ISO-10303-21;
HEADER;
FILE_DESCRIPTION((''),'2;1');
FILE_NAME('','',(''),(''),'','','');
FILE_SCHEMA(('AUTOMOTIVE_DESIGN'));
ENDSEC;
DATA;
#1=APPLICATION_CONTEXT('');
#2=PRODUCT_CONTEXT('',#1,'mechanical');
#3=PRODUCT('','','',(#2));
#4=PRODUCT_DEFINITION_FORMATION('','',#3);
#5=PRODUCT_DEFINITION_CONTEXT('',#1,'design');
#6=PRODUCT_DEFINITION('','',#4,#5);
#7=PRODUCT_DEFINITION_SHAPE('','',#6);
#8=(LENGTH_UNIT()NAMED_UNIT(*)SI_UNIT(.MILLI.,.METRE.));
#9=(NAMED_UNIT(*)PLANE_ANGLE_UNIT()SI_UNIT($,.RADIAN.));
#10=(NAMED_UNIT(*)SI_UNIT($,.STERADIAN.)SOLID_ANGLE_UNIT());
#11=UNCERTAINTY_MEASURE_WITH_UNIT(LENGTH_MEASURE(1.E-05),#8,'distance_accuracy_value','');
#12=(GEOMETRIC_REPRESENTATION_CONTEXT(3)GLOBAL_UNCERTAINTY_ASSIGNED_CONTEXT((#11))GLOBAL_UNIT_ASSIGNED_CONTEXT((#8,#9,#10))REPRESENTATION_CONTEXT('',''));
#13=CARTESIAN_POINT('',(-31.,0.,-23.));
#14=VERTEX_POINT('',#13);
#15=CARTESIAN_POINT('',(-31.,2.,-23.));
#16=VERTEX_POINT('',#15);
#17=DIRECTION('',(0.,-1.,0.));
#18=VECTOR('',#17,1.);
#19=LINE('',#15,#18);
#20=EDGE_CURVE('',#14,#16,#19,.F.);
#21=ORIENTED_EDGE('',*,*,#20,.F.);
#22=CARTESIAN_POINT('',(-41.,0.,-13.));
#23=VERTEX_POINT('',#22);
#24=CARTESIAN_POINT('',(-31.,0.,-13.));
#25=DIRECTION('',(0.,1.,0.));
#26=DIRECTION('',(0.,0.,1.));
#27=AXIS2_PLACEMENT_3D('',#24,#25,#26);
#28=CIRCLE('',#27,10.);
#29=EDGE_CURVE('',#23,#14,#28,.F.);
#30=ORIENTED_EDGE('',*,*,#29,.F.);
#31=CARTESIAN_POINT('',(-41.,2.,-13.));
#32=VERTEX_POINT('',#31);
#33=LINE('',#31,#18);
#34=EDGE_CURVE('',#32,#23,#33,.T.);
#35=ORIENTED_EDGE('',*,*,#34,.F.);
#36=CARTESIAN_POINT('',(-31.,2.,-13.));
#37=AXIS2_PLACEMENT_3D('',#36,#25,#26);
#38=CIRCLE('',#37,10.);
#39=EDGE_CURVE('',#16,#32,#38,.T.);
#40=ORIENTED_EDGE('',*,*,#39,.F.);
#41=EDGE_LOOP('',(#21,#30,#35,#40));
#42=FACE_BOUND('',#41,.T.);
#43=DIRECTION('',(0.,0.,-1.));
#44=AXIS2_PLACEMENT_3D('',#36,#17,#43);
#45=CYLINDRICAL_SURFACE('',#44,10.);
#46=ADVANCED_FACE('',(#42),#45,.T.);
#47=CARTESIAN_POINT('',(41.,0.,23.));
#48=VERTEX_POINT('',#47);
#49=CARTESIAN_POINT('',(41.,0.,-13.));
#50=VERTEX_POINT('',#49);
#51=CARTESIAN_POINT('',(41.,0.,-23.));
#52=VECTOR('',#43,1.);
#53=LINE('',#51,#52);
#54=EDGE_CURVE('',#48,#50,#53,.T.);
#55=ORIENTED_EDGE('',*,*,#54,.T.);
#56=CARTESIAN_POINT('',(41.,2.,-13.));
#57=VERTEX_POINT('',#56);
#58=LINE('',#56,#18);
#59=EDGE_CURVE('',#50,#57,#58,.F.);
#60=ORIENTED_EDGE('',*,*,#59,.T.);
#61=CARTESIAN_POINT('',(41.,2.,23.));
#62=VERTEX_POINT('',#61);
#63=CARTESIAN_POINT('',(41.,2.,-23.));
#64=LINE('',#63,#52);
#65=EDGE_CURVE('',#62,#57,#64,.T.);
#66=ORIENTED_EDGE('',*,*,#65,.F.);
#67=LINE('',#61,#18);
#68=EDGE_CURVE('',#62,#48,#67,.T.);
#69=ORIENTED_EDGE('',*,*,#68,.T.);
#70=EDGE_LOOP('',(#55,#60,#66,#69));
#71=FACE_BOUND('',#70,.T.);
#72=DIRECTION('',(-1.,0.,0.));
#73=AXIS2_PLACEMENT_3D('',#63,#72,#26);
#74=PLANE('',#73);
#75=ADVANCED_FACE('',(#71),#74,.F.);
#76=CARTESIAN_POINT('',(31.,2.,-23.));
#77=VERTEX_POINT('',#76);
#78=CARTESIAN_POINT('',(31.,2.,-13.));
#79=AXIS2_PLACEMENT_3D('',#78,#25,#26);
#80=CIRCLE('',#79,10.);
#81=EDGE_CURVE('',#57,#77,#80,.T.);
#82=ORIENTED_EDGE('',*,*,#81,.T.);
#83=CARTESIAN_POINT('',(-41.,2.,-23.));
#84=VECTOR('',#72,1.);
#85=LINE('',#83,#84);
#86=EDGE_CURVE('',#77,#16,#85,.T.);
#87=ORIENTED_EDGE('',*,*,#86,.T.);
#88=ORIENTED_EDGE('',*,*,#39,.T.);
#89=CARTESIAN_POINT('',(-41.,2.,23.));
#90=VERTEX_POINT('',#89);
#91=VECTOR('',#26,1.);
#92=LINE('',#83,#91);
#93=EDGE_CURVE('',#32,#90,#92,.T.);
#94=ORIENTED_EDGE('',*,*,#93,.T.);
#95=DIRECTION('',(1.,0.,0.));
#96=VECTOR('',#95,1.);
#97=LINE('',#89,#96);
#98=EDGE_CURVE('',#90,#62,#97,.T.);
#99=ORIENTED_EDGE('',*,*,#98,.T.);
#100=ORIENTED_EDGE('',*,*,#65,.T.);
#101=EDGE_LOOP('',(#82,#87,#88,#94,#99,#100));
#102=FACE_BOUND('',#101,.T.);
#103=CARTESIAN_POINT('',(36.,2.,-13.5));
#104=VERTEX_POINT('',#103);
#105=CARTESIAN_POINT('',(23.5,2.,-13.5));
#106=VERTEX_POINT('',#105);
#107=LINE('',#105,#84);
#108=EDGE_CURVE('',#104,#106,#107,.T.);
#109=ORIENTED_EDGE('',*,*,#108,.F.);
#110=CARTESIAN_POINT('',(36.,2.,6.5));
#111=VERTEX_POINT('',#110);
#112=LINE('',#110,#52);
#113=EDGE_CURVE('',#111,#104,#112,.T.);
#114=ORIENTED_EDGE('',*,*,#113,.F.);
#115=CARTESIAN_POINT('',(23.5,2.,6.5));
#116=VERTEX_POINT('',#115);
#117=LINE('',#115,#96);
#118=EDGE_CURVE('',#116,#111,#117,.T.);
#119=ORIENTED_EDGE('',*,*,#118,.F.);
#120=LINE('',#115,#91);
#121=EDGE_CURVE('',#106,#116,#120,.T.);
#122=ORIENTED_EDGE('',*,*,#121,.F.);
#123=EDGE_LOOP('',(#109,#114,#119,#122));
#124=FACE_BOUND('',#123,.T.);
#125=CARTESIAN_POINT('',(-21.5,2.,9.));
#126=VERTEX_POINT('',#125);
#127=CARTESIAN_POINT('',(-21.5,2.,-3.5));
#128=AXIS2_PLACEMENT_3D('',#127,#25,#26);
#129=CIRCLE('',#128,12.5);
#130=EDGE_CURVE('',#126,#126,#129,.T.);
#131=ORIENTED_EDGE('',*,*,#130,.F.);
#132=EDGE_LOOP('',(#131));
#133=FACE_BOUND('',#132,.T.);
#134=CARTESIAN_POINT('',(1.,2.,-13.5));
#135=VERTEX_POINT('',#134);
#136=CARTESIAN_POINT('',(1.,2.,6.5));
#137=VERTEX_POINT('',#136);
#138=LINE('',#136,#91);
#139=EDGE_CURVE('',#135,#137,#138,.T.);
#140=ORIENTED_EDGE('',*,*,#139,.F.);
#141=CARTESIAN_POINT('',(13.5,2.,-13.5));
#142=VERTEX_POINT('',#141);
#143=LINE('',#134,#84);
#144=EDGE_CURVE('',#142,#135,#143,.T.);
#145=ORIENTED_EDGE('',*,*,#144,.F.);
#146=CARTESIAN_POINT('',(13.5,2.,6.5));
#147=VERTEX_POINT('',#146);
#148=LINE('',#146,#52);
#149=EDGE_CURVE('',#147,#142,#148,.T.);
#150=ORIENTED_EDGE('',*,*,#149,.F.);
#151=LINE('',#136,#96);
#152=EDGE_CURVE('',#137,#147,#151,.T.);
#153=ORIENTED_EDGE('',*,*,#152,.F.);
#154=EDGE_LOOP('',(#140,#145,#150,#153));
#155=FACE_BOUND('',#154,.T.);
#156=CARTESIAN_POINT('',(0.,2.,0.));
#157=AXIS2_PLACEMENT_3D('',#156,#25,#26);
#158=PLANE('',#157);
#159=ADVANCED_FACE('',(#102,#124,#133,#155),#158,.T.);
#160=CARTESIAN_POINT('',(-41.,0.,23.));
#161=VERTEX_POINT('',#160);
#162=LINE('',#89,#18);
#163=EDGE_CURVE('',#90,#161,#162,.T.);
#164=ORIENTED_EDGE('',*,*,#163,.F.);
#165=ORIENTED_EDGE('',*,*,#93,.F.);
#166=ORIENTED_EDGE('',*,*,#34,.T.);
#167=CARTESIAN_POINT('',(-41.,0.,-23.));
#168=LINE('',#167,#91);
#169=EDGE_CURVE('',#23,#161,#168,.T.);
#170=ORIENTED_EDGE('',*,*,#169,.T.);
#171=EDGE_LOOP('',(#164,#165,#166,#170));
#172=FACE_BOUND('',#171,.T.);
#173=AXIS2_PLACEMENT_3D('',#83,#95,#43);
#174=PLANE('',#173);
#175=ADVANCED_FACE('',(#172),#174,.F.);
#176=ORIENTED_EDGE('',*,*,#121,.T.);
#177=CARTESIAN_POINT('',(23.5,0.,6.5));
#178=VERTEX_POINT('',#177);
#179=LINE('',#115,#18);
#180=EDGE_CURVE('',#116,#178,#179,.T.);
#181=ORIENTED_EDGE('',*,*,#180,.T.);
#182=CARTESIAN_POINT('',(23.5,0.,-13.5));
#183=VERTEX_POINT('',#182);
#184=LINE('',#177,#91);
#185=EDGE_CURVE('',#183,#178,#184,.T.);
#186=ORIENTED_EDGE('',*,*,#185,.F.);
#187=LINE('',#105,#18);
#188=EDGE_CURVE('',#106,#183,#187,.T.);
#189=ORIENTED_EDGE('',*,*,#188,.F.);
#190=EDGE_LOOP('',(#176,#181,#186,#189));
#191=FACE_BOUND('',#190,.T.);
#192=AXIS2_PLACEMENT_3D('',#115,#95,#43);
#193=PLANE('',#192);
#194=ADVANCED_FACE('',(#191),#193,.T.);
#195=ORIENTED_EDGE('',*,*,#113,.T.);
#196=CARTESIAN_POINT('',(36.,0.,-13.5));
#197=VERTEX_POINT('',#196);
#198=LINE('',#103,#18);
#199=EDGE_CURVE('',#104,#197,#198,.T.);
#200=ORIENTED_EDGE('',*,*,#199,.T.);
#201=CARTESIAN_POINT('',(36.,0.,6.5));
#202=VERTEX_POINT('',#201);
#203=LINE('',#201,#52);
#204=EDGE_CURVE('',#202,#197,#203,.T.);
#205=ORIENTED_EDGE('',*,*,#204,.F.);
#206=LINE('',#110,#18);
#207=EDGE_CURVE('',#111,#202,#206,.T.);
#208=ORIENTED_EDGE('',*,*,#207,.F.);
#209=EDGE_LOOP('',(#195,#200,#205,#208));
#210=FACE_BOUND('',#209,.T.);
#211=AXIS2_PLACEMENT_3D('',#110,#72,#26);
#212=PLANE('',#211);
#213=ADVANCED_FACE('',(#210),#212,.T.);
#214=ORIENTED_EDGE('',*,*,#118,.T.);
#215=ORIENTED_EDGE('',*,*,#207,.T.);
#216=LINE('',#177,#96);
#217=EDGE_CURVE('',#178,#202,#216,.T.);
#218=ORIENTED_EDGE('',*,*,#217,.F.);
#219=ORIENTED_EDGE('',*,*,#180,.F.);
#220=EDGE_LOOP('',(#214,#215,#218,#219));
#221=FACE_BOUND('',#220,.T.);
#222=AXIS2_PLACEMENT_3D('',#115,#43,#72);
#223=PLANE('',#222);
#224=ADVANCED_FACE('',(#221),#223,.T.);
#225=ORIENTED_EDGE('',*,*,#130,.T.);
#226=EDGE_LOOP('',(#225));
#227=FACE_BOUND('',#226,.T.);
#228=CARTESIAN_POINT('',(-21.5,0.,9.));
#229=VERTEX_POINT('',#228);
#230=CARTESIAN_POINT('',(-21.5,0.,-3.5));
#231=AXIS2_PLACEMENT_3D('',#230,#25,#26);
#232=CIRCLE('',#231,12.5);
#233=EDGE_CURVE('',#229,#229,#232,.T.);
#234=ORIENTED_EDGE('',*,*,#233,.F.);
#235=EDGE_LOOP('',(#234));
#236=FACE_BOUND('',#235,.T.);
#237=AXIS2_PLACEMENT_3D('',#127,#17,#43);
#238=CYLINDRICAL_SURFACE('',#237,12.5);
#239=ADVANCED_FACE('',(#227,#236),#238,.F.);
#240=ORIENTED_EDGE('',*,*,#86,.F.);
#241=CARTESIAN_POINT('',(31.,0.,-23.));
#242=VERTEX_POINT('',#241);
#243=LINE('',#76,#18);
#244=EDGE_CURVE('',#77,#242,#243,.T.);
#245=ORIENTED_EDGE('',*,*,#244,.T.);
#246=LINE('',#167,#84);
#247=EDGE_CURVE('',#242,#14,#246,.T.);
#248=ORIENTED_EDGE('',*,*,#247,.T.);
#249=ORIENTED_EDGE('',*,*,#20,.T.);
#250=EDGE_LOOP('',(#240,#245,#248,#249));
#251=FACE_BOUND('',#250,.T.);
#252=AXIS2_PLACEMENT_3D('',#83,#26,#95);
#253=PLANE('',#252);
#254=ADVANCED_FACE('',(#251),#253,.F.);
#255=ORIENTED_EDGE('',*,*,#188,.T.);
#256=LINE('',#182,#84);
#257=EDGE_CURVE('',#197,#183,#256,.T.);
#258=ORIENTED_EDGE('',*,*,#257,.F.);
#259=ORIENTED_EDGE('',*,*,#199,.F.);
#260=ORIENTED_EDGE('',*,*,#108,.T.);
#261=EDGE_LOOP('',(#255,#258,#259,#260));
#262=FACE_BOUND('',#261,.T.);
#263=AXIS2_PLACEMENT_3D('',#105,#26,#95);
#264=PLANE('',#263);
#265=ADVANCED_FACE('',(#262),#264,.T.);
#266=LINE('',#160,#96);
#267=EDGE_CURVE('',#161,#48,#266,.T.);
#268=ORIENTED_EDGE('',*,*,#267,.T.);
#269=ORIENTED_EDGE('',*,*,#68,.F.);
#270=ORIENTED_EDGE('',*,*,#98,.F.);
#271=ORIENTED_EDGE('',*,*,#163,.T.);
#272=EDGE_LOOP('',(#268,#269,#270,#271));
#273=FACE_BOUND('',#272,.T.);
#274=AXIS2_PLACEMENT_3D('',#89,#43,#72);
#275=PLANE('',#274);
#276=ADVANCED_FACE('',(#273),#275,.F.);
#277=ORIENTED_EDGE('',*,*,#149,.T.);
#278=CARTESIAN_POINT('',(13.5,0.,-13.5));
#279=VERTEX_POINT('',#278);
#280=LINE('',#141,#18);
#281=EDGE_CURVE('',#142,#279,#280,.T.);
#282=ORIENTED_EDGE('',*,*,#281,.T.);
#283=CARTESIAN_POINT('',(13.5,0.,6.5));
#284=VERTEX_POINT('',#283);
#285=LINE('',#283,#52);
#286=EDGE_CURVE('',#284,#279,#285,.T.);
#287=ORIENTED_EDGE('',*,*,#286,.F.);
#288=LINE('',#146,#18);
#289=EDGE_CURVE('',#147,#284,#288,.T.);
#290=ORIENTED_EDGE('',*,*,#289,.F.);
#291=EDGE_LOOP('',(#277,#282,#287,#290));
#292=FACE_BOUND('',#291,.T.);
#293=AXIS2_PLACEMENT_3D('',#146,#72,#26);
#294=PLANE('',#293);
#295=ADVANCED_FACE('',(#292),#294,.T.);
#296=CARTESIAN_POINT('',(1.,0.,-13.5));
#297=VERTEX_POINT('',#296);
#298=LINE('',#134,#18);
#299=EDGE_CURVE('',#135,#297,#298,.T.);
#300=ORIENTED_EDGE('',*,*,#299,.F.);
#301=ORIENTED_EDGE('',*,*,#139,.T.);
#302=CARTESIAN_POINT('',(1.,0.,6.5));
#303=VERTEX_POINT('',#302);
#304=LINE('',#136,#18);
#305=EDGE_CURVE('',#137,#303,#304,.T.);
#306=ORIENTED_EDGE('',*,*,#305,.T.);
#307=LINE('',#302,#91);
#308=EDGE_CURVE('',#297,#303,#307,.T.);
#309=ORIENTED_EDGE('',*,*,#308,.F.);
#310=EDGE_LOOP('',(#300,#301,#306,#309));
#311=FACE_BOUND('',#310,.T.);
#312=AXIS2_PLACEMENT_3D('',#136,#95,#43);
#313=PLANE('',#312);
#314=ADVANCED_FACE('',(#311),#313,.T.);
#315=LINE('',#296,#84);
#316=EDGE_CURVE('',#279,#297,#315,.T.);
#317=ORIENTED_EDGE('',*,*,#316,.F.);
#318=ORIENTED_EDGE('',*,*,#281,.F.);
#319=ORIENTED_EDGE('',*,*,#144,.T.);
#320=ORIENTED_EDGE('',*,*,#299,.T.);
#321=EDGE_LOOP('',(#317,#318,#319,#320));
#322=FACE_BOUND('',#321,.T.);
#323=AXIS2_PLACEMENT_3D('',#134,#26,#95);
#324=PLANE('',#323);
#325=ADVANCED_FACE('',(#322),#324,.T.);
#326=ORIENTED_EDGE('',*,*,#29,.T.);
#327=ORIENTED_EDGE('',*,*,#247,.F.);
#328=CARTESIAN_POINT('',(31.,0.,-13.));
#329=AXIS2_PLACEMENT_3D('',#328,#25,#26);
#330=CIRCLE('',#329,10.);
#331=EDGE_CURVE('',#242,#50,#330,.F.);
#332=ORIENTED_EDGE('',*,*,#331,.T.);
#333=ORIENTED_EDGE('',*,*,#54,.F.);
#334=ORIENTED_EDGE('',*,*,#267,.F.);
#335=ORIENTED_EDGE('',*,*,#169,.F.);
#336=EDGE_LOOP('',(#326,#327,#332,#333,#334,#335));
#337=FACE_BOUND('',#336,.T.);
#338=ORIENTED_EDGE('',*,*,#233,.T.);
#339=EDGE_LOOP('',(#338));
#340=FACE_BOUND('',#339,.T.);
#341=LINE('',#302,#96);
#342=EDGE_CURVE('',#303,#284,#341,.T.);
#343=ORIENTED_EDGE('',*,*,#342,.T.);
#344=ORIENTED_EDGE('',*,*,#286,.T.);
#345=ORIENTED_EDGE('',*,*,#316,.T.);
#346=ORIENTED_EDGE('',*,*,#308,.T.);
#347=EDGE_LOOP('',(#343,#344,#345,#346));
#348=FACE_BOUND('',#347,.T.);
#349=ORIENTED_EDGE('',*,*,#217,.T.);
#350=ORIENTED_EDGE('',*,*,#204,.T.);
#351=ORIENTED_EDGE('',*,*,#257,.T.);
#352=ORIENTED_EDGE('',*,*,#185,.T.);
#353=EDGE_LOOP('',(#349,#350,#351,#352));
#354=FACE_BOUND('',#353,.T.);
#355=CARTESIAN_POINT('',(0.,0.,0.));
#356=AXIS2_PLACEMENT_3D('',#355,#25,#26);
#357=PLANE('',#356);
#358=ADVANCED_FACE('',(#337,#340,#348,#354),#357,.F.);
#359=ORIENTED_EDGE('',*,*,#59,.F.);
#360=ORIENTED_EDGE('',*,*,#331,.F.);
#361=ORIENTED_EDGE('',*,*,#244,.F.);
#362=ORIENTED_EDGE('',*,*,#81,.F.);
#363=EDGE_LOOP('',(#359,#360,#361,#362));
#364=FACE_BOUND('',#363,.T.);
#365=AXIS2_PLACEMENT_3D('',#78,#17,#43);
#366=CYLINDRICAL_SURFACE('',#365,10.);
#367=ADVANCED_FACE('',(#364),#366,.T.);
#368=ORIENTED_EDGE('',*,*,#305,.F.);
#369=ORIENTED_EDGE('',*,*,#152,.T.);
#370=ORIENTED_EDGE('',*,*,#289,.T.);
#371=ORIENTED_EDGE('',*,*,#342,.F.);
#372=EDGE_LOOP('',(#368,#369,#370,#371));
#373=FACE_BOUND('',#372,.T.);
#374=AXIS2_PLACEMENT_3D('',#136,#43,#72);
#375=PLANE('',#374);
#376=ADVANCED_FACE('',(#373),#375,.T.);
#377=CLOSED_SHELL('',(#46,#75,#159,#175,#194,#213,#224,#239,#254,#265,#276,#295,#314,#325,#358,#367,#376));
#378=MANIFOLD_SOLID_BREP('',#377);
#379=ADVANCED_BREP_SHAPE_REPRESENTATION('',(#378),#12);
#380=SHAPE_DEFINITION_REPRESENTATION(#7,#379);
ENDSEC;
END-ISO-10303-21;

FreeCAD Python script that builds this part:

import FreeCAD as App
import Part
import Sketcher

V = App.Vector


def edges_at(feature, points):
    """Names of the edges that pass closest to the given points."""
    edges = feature.Shape.Edges
    near = lambda p: min(range(len(edges)), key=lambda i: edges[i].distToShape(Part.Vertex(*p))[0])
    return sorted({f"Edge{near(p) + 1}" for p in points})


def add_polygon(sketch, points):
    """Adds a closed chain of lines whose ends are joined by coincident constraints."""
    first, n = sketch.GeometryCount, len(points)
    for a, b in zip(points, points[1:] + points[:1]):
        sketch.addGeometry(Part.LineSegment(App.Vector(*a, 0), App.Vector(*b, 0)), False)
    for i in range(n):
        sketch.addConstraint(Sketcher.Constraint("Coincident", first + i, 2, first + (i + 1) % n, 1))

doc = App.newDocument("Part")
body = doc.addObject("PartDesign::Body", "Body")

sketch1 = doc.addObject("Sketcher::SketchObject", "Sketch")
body.addObject(sketch1)
sketch1.AttachmentSupport = (doc.XZ_Plane, [""])
sketch1.MapMode = "FlatFace"
add_polygon(sketch1, [(-41, -23), (-41, 23), (41, 23), (41, -23)])
sketch1.addGeometry(Part.Circle(V(-22, -4, 0), V(0, 0, 1), 12), False)
add_polygon(sketch1, [(14, 6), (1, 6), (1, -14), (14, -14)])
add_polygon(sketch1, [(36, 6), (24, 6), (24, -14), (36, -14)])
sketch1.addConstraint([
    Sketcher.Constraint("Vertical", 0),
    Sketcher.Constraint("Horizontal", 1),
    Sketcher.Constraint("Vertical", 2),
    Sketcher.Constraint("Horizontal", 3),
    Sketcher.Constraint("Horizontal", 5),
    Sketcher.Constraint("Vertical", 6),
    Sketcher.Constraint("Horizontal", 7),
    Sketcher.Constraint("Vertical", 8),
    Sketcher.Constraint("Horizontal", 9),
    Sketcher.Constraint("Vertical", 10),
    Sketcher.Constraint("Horizontal", 11),
    Sketcher.Constraint("Vertical", 12),
    Sketcher.Constraint("Symmetric", 0, 2, 2, 2, -1, 1),
    Sketcher.Constraint("Horizontal", 8, 2, 9, 2),
    Sketcher.Constraint("Horizontal", 7, 2, 10, 2),
    Sketcher.Constraint("Equal", 7, 9),
    Sketcher.Constraint("Diameter", 4, 25.0),
    Sketcher.Constraint("DistanceX", 1, 1, 1, 2, 82.0),
    Sketcher.Constraint("DistanceY", 0, 1, 0, 2, 46.0),
    Sketcher.Constraint("DistanceY", 6, 2, 6, 1, 20.0),
    Sketcher.Constraint("DistanceX", 5, 2, 5, 1, 12.5),
    Sketcher.Constraint("DistanceX", -1, 1, 5, 2, 1.0),
    Sketcher.Constraint("DistanceX", -1, 1, 11, 2, 36.0),
    Sketcher.Constraint("DistanceY", 4, 3, 5, 2, 10.0),
    Sketcher.Constraint("DistanceX", 4, 3, 7, 2, 35.0),
    Sketcher.Constraint("DistanceY", 4, 3, -1, 1, 3.5),
])
pad1 = doc.addObject("PartDesign::Pad", "Pad")
body.addObject(pad1)
pad1.Profile = sketch1
pad1.Length = 2
pad1.Reversed = True
doc.recompute()

fillet = doc.addObject("PartDesign::Fillet", "Fillet")
body.addObject(fillet)
fillet.Base = (pad1, edges_at(pad1, [(-41, 1, -23), (41, 1, -23)]))
fillet.Radius = 10

doc.recompute()
